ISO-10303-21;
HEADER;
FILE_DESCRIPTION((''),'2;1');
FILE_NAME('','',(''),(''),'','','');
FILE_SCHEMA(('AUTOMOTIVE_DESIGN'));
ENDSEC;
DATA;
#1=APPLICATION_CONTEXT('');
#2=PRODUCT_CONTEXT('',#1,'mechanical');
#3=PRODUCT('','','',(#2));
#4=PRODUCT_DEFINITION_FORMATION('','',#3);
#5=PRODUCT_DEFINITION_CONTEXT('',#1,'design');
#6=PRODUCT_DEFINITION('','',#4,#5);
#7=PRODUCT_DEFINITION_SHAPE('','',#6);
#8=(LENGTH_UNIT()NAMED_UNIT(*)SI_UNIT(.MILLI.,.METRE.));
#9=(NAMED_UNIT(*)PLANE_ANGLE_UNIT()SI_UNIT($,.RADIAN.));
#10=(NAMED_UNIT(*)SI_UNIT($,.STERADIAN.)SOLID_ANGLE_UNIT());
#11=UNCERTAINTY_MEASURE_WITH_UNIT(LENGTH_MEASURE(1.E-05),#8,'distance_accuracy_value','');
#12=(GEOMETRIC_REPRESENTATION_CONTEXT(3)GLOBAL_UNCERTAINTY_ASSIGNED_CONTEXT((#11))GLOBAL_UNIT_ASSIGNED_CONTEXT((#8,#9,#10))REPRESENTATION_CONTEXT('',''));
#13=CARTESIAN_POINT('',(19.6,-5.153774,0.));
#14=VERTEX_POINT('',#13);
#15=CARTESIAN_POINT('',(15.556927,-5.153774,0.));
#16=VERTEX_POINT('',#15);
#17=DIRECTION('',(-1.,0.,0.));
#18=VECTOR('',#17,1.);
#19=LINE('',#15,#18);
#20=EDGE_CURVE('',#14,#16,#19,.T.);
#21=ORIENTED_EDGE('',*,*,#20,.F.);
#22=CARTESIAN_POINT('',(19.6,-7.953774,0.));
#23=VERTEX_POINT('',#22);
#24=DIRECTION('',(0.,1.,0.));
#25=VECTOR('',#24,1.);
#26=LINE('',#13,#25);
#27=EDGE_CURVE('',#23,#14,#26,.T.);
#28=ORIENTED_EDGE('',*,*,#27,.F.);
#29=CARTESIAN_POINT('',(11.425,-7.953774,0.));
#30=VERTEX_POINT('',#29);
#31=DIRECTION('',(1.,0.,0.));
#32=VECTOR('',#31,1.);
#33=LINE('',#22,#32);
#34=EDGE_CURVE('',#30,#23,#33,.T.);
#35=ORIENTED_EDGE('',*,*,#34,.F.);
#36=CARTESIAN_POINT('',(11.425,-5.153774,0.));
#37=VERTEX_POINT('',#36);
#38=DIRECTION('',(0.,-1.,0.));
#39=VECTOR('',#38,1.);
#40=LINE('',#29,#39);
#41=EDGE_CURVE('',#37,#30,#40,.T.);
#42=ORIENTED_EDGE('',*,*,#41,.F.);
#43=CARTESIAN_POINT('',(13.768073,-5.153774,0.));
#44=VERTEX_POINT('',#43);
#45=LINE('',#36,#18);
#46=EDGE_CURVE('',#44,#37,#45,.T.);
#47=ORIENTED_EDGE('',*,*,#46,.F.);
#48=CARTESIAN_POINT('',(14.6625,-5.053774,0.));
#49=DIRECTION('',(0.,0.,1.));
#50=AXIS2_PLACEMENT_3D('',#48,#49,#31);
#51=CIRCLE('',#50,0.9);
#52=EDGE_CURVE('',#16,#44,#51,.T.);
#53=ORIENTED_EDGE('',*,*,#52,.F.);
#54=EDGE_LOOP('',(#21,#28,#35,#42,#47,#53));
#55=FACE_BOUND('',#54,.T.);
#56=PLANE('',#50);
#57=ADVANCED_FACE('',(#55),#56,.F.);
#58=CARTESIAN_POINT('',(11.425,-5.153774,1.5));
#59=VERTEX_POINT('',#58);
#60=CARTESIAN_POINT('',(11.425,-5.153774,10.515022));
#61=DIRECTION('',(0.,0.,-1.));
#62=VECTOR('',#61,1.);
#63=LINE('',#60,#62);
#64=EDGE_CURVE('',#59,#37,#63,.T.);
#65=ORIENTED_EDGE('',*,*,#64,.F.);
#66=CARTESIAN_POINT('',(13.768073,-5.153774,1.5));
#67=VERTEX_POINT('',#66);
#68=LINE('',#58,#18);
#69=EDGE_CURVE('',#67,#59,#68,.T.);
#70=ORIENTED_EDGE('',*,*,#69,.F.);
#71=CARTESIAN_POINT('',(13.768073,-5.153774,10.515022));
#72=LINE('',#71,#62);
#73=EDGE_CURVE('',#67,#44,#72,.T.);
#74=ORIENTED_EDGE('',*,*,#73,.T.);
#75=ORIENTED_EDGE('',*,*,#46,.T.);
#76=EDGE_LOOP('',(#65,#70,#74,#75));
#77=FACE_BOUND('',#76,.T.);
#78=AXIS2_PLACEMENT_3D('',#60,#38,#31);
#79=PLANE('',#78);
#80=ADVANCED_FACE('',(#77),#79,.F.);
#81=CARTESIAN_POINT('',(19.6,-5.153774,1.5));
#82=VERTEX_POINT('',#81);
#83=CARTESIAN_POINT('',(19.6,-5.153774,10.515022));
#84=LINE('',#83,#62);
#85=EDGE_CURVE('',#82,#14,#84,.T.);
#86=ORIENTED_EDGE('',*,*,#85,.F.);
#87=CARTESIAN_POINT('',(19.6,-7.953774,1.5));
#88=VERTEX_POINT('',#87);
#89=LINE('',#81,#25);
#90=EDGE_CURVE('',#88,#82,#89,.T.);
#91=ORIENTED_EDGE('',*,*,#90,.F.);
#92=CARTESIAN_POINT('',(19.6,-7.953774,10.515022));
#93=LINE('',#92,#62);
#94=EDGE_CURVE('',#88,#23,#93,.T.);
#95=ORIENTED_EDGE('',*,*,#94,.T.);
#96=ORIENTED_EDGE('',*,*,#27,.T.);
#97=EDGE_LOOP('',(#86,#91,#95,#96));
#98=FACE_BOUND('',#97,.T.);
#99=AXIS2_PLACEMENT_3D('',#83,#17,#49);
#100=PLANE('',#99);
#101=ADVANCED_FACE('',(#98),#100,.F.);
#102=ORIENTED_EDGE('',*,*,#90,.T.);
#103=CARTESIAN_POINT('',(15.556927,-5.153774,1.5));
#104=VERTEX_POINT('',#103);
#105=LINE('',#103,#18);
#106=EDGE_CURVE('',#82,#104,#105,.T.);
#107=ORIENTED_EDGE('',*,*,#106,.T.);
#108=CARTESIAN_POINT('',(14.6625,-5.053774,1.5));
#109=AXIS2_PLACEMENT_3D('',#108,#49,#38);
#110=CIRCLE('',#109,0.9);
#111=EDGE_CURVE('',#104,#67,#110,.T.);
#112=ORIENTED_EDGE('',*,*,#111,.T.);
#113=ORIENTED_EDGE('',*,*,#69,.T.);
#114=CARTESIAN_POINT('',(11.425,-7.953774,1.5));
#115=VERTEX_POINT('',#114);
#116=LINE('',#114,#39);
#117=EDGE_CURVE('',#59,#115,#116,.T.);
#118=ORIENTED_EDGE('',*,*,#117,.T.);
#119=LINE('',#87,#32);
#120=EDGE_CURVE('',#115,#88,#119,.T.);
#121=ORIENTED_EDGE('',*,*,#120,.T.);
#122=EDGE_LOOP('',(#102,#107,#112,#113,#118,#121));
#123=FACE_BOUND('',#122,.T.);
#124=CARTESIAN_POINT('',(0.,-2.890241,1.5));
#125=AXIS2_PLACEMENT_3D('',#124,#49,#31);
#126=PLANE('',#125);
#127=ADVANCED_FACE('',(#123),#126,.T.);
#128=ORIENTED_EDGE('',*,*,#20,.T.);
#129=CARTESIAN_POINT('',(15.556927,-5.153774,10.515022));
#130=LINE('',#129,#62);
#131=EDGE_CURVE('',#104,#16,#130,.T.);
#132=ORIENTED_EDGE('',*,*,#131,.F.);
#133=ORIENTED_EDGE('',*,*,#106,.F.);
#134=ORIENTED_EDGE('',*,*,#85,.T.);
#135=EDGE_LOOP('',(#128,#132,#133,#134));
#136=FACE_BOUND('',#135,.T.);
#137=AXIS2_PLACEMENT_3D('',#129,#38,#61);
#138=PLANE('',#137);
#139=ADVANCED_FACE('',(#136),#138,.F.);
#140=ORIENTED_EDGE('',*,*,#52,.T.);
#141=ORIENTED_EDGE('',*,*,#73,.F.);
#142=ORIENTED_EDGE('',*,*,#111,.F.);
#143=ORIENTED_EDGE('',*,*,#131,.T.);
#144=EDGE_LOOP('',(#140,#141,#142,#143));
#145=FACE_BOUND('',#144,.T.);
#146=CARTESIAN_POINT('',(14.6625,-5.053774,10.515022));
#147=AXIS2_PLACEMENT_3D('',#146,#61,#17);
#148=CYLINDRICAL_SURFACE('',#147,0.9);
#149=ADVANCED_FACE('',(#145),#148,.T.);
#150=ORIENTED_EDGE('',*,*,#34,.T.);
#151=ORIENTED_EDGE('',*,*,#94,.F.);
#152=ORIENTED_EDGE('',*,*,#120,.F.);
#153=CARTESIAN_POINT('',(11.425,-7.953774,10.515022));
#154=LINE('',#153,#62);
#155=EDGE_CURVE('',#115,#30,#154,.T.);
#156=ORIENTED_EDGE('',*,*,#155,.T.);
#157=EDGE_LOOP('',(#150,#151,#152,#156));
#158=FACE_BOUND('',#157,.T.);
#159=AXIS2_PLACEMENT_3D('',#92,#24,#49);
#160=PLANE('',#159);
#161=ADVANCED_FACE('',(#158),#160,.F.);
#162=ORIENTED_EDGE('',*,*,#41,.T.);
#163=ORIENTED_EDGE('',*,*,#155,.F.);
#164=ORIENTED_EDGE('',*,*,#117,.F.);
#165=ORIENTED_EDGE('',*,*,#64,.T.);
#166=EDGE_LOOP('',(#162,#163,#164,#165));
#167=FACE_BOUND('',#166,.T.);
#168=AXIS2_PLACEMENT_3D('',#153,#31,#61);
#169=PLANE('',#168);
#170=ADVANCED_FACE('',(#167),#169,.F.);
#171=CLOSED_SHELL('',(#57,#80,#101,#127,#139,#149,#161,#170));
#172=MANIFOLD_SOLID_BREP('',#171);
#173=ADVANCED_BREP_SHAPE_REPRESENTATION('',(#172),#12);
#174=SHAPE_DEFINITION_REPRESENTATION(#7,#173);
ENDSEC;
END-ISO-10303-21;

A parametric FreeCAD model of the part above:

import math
import FreeCAD as App
import Part
import Sketcher
from FreeCAD import Vector
Q = App.Units.Quantity

doc = App.newDocument("Part")
body = doc.addObject("PartDesign::Body", "Body")

# Sketch on XY plane
sketch1 = body.newObject("Sketcher::SketchObject", "Sketch")
sketch1.AttachmentSupport = (doc.getObject("XY_Plane"), [""])
sketch1.MapMode = "FlatFace"
sketch1.addGeometry(Part.LineSegment(Vector(13.768073, -5.153774, 0), Vector(11.425, -5.153774, 0)), False)
sketch1.addGeometry(Part.LineSegment(Vector(11.425, -5.153774, 0), Vector(11.425, -7.953774, 0)), False)
sketch1.addGeometry(Part.LineSegment(Vector(11.425, -7.953774, 0), Vector(19.6, -7.953774, 0)), False)
sketch1.addGeometry(Part.LineSegment(Vector(19.6, -7.953774, 0), Vector(19.6, -5.153774, 0)), False)
sketch1.addGeometry(Part.LineSegment(Vector(19.6, -5.153774, 0), Vector(15.556927, -5.153774, 0)), False)
sketch1.addGeometry(Part.ArcOfCircle(Part.Circle(Vector(14.6625, -5.053774, 0), Vector(0, 0, 1), 0.9), math.radians(-6.37937), math.radians(186.37937)), False)
sketch1.addConstraint(Sketcher.Constraint("Coincident", 0, 2, 1, 1))
sketch1.addConstraint(Sketcher.Constraint("Coincident", 1, 2, 2, 1))
sketch1.addConstraint(Sketcher.Constraint("Coincident", 2, 2, 3, 1))
sketch1.addConstraint(Sketcher.Constraint("Coincident", 3, 2, 4, 1))
sketch1.addConstraint(Sketcher.Constraint("Coincident", 4, 2, 5, 1))
sketch1.addConstraint(Sketcher.Constraint("Coincident", 5, 2, 0, 1))
sketch1.addConstraint(Sketcher.Constraint("Horizontal", 0))
sketch1.addConstraint(Sketcher.Constraint("Vertical", 1))
sketch1.addConstraint(Sketcher.Constraint("Horizontal", 2))
sketch1.addConstraint(Sketcher.Constraint("Vertical", 3))
sketch1.addConstraint(Sketcher.Constraint("Horizontal", 4))
sketch1.addConstraint(Sketcher.Constraint("Horizontal", 0, 2, 3, 2))
sketch1.addConstraint(Sketcher.Constraint("Radius", 5, Q("0.9 mm")))
sketch1.addConstraint(Sketcher.Constraint("DistanceY", 1, 2, 1, 1, Q("2.8 mm")))
sketch1.addConstraint(Sketcher.Constraint("DistanceX", -1, 1, 2, 2, Q("19.6 mm")))
sketch1.addConstraint(Sketcher.Constraint("DistanceY", 0, 2, 5, 3, Q("0.1 mm")))
sketch1.addConstraint(Sketcher.Constraint("DistanceX", 2, 1, 2, 2, Q("8.175 mm")))
sketch1.addConstraint(Sketcher.Constraint("DistanceX", -1, 1, 5, 3, Q("14.6625 mm")))
sketch1.addConstraint(Sketcher.Constraint("DistanceY", 5, 3, -1, 1, Q("5.053774 mm")))
pad1 = body.newObject("PartDesign::Pad", "Pad")
pad1.Profile = sketch1
pad1.Length = 1.5

doc.recompute()
